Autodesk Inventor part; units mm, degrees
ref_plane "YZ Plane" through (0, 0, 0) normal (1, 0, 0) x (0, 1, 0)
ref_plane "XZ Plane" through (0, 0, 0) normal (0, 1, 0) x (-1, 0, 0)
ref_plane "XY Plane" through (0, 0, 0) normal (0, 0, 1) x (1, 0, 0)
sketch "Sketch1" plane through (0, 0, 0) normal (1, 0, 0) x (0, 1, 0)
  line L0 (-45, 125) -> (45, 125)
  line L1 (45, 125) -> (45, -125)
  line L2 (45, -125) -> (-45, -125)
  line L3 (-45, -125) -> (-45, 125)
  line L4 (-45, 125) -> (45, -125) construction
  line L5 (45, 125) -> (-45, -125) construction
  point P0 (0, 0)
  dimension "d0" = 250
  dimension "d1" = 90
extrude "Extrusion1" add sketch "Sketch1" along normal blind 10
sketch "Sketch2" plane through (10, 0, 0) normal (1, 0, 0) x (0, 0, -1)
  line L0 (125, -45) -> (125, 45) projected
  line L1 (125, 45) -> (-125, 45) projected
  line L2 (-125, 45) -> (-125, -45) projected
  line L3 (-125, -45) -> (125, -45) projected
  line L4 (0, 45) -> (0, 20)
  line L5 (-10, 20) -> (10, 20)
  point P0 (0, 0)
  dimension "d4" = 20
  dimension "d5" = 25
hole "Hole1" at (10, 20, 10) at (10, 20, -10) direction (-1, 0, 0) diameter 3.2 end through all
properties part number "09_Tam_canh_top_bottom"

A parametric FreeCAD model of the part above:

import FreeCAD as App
import Part
import Sketcher
from FreeCAD import Vector
Q = App.Units.Quantity

doc = App.newDocument("Part")
body = doc.addObject("PartDesign::Body", "Body")

# Sketch on YZ plane
sketch1 = body.newObject("Sketcher::SketchObject", "Sketch")
sketch1.AttachmentSupport = (doc.getObject("YZ_Plane"), [""])
sketch1.MapMode = "FlatFace"
sketch1.addGeometry(Part.LineSegment(Vector(45, 125, 0), Vector(-45, 125, 0)), False)
sketch1.addGeometry(Part.LineSegment(Vector(-45, 125, 0), Vector(-45, -125, 0)), False)
sketch1.addGeometry(Part.LineSegment(Vector(-45, -125, 0), Vector(45, -125, 0)), False)
sketch1.addGeometry(Part.LineSegment(Vector(45, -125, 0), Vector(45, 125, 0)), False)
sketch1.addConstraint(Sketcher.Constraint("Coincident", 0, 2, 1, 1))
sketch1.addConstraint(Sketcher.Constraint("Coincident", 1, 2, 2, 1))
sketch1.addConstraint(Sketcher.Constraint("Coincident", 2, 2, 3, 1))
sketch1.addConstraint(Sketcher.Constraint("Coincident", 3, 2, 0, 1))
sketch1.addConstraint(Sketcher.Constraint("Horizontal", 0))
sketch1.addConstraint(Sketcher.Constraint("Vertical", 1))
sketch1.addConstraint(Sketcher.Constraint("Horizontal", 2))
sketch1.addConstraint(Sketcher.Constraint("Vertical", 3))
sketch1.addConstraint(Sketcher.Constraint("Symmetric", 0, 2, 2, 2, -1, 1))
sketch1.addConstraint(Sketcher.Constraint("DistanceX", 0, 2, 0, 1, Q("90 mm")))
sketch1.addConstraint(Sketcher.Constraint("DistanceY", 1, 2, 1, 1, Q("250 mm")))
pad1 = body.newObject("PartDesign::Pad", "Pad")
pad1.Profile = sketch1
pad1.Length = 10

# Sketch on YZ plane
sketch2 = body.newObject("Sketcher::SketchObject", "Sketch001")
sketch2.AttachmentSupport = (doc.getObject("YZ_Plane"), [""])
sketch2.MapMode = "FlatFace"
sketch2.AttachmentOffset = App.Placement(Vector(0, 0, 10), App.Rotation())
sketch2.addGeometry(Part.Circle(Vector(20, 10, 0), Vector(0, 0, 1), 1.6), False)
sketch2.addGeometry(Part.Circle(Vector(20, -10, 0), Vector(0, 0, 1), 1.6), False)
sketch2.addConstraint(Sketcher.Constraint("Equal", 0, 1))
sketch2.addConstraint(Sketcher.Constraint("Symmetric", 0, 3, 1, 3, -1))
sketch2.addConstraint(Sketcher.Constraint("Diameter", 0, Q("3.2 mm")))
sketch2.addConstraint(Sketcher.Constraint("DistanceX", -1, 1, 0, 3, Q("20 mm")))
sketch2.addConstraint(Sketcher.Constraint("DistanceY", -1, 1, 0, 3, Q("10 mm")))
doc.recompute()
hole = body.newObject("PartDesign::Hole", "Hole")
hole.Profile = sketch2
hole.ThreadType = "None"
hole.Diameter = 3.2
hole.DepthType = "ThroughAll"

doc.recompute()
